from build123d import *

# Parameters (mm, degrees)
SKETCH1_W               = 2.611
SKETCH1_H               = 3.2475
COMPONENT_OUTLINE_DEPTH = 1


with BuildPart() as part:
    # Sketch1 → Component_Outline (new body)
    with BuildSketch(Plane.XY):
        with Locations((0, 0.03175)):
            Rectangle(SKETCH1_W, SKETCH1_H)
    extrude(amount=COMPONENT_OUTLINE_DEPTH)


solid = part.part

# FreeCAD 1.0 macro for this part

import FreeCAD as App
import Part
import Sketcher

V = App.Vector
Q = App.Units.Quantity


def add_polygon(sketch, points):
    """Adds a closed chain of lines whose ends are joined by coincident constraints."""
    first, n = sketch.GeometryCount, len(points)
    for a, b in zip(points, points[1:] + points[:1]):
        sketch.addGeometry(Part.LineSegment(App.Vector(*a, 0), App.Vector(*b, 0)), False)
    for i in range(n):
        sketch.addConstraint(Sketcher.Constraint("Coincident", first + i, 2, first + (i + 1) % n, 1))

doc = App.newDocument("Part")
body = doc.addObject("PartDesign::Body", "Body")

# Sketch on XY plane
sketch1 = body.newObject("Sketcher::SketchObject", "Sketch")
sketch1.AttachmentSupport = (doc.getObject("XY_Plane"), [""])
sketch1.MapMode = "FlatFace"
add_polygon(sketch1, [(-1.3, 1.7), (-1.3, -1.6), (1.3, -1.6), (1.3, 1.7)])  # lines 0-3
sketch1.addConstraint(Sketcher.Constraint("Vertical", 0))
sketch1.addConstraint(Sketcher.Constraint("Horizontal", 1))
sketch1.addConstraint(Sketcher.Constraint("Vertical", 2))
sketch1.addConstraint(Sketcher.Constraint("Horizontal", 3))
sketch1.addConstraint(Sketcher.Constraint("DistanceX", 1, 1, 1, 2, Q("2.611 mm")))
sketch1.addConstraint(Sketcher.Constraint("DistanceY", 0, 2, 0, 1, Q("3.2475 mm")))
sketch1.addConstraint(Sketcher.Constraint("DistanceY", 0, 2, -1, 1, Q("1.592 mm")))
sketch1.addConstraint(Sketcher.Constraint("DistanceX", 0, 2, -1, 1, Q("1.3055 mm")))
pad1 = body.newObject("PartDesign::Pad", "Pad")
pad1.Profile = sketch1
pad1.Length = 1

doc.recompute()
